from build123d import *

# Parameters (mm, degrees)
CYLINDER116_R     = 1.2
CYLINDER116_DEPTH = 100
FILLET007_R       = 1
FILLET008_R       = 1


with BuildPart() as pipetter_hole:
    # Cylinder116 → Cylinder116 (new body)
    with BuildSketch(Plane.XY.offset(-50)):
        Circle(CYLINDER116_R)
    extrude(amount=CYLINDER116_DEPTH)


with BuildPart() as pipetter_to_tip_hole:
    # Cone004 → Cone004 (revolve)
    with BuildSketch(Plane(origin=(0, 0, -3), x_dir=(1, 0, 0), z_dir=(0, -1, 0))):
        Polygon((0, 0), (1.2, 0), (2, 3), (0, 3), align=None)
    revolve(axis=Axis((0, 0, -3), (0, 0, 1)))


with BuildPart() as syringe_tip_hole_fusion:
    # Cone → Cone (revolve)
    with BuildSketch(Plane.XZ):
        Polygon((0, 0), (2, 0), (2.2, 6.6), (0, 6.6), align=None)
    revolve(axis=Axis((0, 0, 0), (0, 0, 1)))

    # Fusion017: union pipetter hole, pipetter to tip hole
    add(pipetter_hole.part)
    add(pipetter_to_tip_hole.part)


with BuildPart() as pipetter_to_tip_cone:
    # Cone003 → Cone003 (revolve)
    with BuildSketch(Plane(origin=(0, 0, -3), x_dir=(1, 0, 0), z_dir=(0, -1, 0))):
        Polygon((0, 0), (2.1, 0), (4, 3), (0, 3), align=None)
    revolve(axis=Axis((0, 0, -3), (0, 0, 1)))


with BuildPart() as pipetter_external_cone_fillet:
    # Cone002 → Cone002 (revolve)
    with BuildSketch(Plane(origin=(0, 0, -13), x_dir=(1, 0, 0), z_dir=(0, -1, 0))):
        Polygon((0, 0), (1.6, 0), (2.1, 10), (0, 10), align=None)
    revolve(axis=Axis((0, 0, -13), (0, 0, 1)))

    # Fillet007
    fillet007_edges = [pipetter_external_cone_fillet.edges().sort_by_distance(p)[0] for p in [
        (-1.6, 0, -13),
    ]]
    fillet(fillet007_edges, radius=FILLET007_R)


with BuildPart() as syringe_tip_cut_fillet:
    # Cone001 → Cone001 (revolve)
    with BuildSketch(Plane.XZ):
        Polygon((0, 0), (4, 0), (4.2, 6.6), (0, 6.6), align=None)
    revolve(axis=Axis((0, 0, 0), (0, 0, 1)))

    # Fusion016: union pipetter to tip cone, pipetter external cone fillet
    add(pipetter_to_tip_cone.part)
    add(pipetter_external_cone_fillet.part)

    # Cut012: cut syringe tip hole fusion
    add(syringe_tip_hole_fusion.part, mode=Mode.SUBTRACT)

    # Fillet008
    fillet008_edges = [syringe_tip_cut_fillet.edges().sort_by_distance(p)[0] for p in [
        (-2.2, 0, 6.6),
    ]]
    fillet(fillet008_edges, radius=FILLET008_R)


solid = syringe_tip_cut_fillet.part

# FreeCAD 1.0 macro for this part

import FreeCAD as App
import Part
import Sketcher

V = App.Vector
Q = App.Units.Quantity


def edges_at(feature, points):
    """Names of the edges that pass closest to the given points."""
    edges = feature.Shape.Edges
    near = lambda p: min(range(len(edges)), key=lambda i: edges[i].distToShape(Part.Vertex(*p))[0])
    return sorted({f"Edge{near(p) + 1}" for p in points})


def add_polygon(sketch, points):
    """Adds a closed chain of lines whose ends are joined by coincident constraints."""
    first, n = sketch.GeometryCount, len(points)
    for a, b in zip(points, points[1:] + points[:1]):
        sketch.addGeometry(Part.LineSegment(App.Vector(*a, 0), App.Vector(*b, 0)), False)
    for i in range(n):
        sketch.addConstraint(Sketcher.Constraint("Coincident", first + i, 2, first + (i + 1) % n, 1))

doc = App.newDocument("Part")
body = doc.addObject("PartDesign::Body", "Body")

# Sketch on XY plane
sketch1 = body.newObject("Sketcher::SketchObject", "Sketch")
sketch1.AttachmentSupport = (doc.getObject("XY_Plane"), [""])
sketch1.MapMode = "FlatFace"
sketch1.AttachmentOffset = App.Placement(V(0, 0, -50), App.Rotation())
sketch1.addGeometry(Part.Circle(V(0, 0, 0), V(0, 0, 1), 1.2), False)
sketch1.addConstraint(Sketcher.Constraint("Coincident", 0, 3, -1, 1))
sketch1.addConstraint(Sketcher.Constraint("Diameter", 0, Q("2.4 mm")))
pad1 = body.newObject("PartDesign::Pad", "Pad")
pad1.Profile = sketch1
pad1.Length = 100
body2 = doc.addObject("PartDesign::Body", "Body001")

# Sketch on XZ plane
sketch2 = body2.newObject("Sketcher::SketchObject", "Sketch001")
sketch2.AttachmentSupport = (doc.getObject("XZ_Plane001"), [""])
sketch2.MapMode = "FlatFace"
add_polygon(sketch2, [(0, -3), (1.2, -3), (2, 0), (0, 0)])  # lines 0-3
sketch2.addConstraint(Sketcher.Constraint("Horizontal", 0))
sketch2.addConstraint(Sketcher.Constraint("Horizontal", 2))
sketch2.addConstraint(Sketcher.Constraint("Vertical", 3))
sketch2.addConstraint(Sketcher.Constraint("Coincident", 2, 2, -1, 1))
sketch2.addConstraint(Sketcher.Constraint("DistanceX", 2, 2, 2, 1, Q("2 mm")))
sketch2.addConstraint(Sketcher.Constraint("DistanceY", 3, 2, 3, 1, Q("3 mm")))
sketch2.addConstraint(Sketcher.Constraint("DistanceX", 0, 1, 0, 2, Q("1.2 mm")))
revolution = body2.newObject("PartDesign::Revolution", "Revolution")
revolution.Profile = sketch2
revolution.ReferenceAxis = (sketch2, ["V_Axis"])
revolution.Angle = 360
body3 = doc.addObject("PartDesign::Body", "Body002")

# Sketch on XZ plane
sketch3 = body3.newObject("Sketcher::SketchObject", "Sketch002")
sketch3.AttachmentSupport = (doc.getObject("XZ_Plane002"), [""])
sketch3.MapMode = "FlatFace"
add_polygon(sketch3, [(0, 0), (2, 0), (2.2, 6.6), (0, 6.6)])  # lines 0-3
sketch3.addConstraint(Sketcher.Constraint("Horizontal", 0))
sketch3.addConstraint(Sketcher.Constraint("Horizontal", 2))
sketch3.addConstraint(Sketcher.Constraint("Vertical", 3))
sketch3.addConstraint(Sketcher.Constraint("Coincident", 3, 2, -1, 1))
sketch3.addConstraint(Sketcher.Constraint("DistanceX", 0, 1, 0, 2, Q("2 mm")))
sketch3.addConstraint(Sketcher.Constraint("DistanceX", 2, 2, 2, 1, Q("2.2 mm")))
sketch3.addConstraint(Sketcher.Constraint("DistanceY", 3, 2, 3, 1, Q("6.6 mm")))
revolution2 = body3.newObject("PartDesign::Revolution", "Revolution001")
revolution2.Profile = sketch3
revolution2.ReferenceAxis = (sketch3, ["V_Axis"])
revolution2.Angle = 360
doc.recompute()

boolean = body3.newObject("PartDesign::Boolean", "Boolean")
boolean.Type = "Fuse"
boolean.addObjects([body])
doc.recompute()

boolean2 = body3.newObject("PartDesign::Boolean", "Boolean001")
boolean2.Type = "Fuse"
boolean2.addObjects([body2])
body4 = doc.addObject("PartDesign::Body", "Body003")

# Sketch on XZ plane
sketch4 = body4.newObject("Sketcher::SketchObject", "Sketch003")
sketch4.AttachmentSupport = (doc.getObject("XZ_Plane003"), [""])
sketch4.MapMode = "FlatFace"
add_polygon(sketch4, [(0, -3), (2.1, -3), (4, 0), (0, 0)])  # lines 0-3
sketch4.addConstraint(Sketcher.Constraint("Horizontal", 0))
sketch4.addConstraint(Sketcher.Constraint("Horizontal", 2))
sketch4.addConstraint(Sketcher.Constraint("Vertical", 3))
sketch4.addConstraint(Sketcher.Constraint("Coincident", 2, 2, -1, 1))
sketch4.addConstraint(Sketcher.Constraint("DistanceX", 2, 2, 2, 1, Q("4 mm")))
sketch4.addConstraint(Sketcher.Constraint("DistanceY", 3, 2, 3, 1, Q("3 mm")))
sketch4.addConstraint(Sketcher.Constraint("DistanceX", 0, 1, 0, 2, Q("2.1 mm")))
revolution3 = body4.newObject("PartDesign::Revolution", "Revolution002")
revolution3.Profile = sketch4
revolution3.ReferenceAxis = (sketch4, ["V_Axis"])
revolution3.Angle = 360
body5 = doc.addObject("PartDesign::Body", "Body004")

# Sketch on XZ plane
sketch5 = body5.newObject("Sketcher::SketchObject", "Sketch004")
sketch5.AttachmentSupport = (doc.getObject("XZ_Plane004"), [""])
sketch5.MapMode = "FlatFace"
add_polygon(sketch5, [(0, -13), (1.6, -13), (2.1, -3), (0, -3)])  # lines 0-3
sketch5.addConstraint(Sketcher.Constraint("Horizontal", 0))
sketch5.addConstraint(Sketcher.Constraint("Horizontal", 2))
sketch5.addConstraint(Sketcher.Constraint("Vertical", 3))
sketch5.addConstraint(Sketcher.Constraint("PointOnObject", 2, 2, -2))
sketch5.addConstraint(Sketcher.Constraint("DistanceY", 3, 2, 3, 1, Q("10 mm")))
sketch5.addConstraint(Sketcher.Constraint("DistanceX", 0, 1, 0, 2, Q("1.6 mm")))
sketch5.addConstraint(Sketcher.Constraint("DistanceX", 2, 2, 2, 1, Q("2.1 mm")))
sketch5.addConstraint(Sketcher.Constraint("DistanceY", 0, 2, -1, 1, Q("13 mm")))
revolution4 = body5.newObject("PartDesign::Revolution", "Revolution003")
revolution4.Profile = sketch5
revolution4.ReferenceAxis = (sketch5, ["V_Axis"])
revolution4.Angle = 360
doc.recompute()

fillet = body5.newObject("PartDesign::Fillet", "Fillet")
fillet.Base = (revolution4, edges_at(revolution4, [(-1.6, 0, -13)]))
fillet.Radius = 1
body6 = doc.addObject("PartDesign::Body", "Body005")

# Sketch on XZ plane
sketch6 = body6.newObject("Sketcher::SketchObject", "Sketch005")
sketch6.AttachmentSupport = (doc.getObject("XZ_Plane005"), [""])
sketch6.MapMode = "FlatFace"
add_polygon(sketch6, [(0, 0), (4, 0), (4.2, 6.6), (0, 6.6)])  # lines 0-3
sketch6.addConstraint(Sketcher.Constraint("Horizontal", 0))
sketch6.addConstraint(Sketcher.Constraint("Horizontal", 2))
sketch6.addConstraint(Sketcher.Constraint("Vertical", 3))
sketch6.addConstraint(Sketcher.Constraint("Coincident", 3, 2, -1, 1))
sketch6.addConstraint(Sketcher.Constraint("DistanceX", 0, 1, 0, 2, Q("4 mm")))
sketch6.addConstraint(Sketcher.Constraint("DistanceX", 2, 2, 2, 1, Q("4.2 mm")))
sketch6.addConstraint(Sketcher.Constraint("DistanceY", 3, 2, 3, 1, Q("6.6 mm")))
revolution5 = body6.newObject("PartDesign::Revolution", "Revolution004")
revolution5.Profile = sketch6
revolution5.ReferenceAxis = (sketch6, ["V_Axis"])
revolution5.Angle = 360
doc.recompute()

boolean3 = body6.newObject("PartDesign::Boolean", "Boolean002")
boolean3.Type = "Fuse"
boolean3.addObjects([body4])
doc.recompute()

boolean4 = body6.newObject("PartDesign::Boolean", "Boolean003")
boolean4.Type = "Fuse"
boolean4.addObjects([body5])
doc.recompute()

boolean5 = body6.newObject("PartDesign::Boolean", "Boolean004")
boolean5.Type = "Cut"
boolean5.addObjects([body3])
doc.recompute()

fillet2 = body6.newObject("PartDesign::Fillet", "Fillet001")
fillet2.Base = (boolean5, edges_at(boolean5, [(-2.2, 0, 6.6)]))
fillet2.Radius = 1

doc.recompute()
